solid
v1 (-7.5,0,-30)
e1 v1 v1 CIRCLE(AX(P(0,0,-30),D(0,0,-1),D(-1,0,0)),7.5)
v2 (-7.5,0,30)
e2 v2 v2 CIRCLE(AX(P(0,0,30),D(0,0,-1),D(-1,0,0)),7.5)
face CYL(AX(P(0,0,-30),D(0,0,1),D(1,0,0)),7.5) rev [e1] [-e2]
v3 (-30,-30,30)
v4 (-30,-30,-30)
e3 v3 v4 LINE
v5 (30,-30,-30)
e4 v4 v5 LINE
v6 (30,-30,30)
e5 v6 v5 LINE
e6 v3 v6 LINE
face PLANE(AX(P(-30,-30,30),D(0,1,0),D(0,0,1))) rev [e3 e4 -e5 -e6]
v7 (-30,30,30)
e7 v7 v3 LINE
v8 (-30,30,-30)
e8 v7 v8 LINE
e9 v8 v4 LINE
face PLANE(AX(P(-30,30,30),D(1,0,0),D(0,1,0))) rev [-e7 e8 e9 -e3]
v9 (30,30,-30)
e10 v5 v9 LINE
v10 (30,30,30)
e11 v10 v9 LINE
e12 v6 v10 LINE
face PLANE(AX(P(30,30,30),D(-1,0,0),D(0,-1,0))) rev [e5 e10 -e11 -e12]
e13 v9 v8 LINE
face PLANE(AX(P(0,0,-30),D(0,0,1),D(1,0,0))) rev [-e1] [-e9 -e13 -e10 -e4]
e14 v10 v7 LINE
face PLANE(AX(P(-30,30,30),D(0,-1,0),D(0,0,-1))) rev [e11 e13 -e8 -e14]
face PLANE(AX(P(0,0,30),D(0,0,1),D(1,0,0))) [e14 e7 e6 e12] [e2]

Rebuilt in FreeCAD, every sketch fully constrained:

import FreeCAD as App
import Part
import Sketcher
Q = App.Units.Quantity

doc = App.newDocument("Part")
body = doc.addObject("PartDesign::Body", "Body")

# Sketch on XY plane
sketch1 = body.newObject("Sketcher::SketchObject", "Sketch")
sketch1.AttachmentSupport = (doc.getObject("XY_Plane"), [""])
sketch1.MapMode = "FlatFace"
sketch1.addGeometry(Part.LineSegment(App.Vector(-30, 30, 0), App.Vector(-30, -30, 0)), False)
sketch1.addGeometry(Part.LineSegment(App.Vector(-30, -30, 0), App.Vector(30, -30, 0)), False)
sketch1.addGeometry(Part.LineSegment(App.Vector(30, -30, 0), App.Vector(30, 30, 0)), False)
sketch1.addGeometry(Part.LineSegment(App.Vector(30, 30, 0), App.Vector(-30, 30, 0)), False)
sketch1.addConstraint(Sketcher.Constraint("Coincident", 0, 2, 1, 1))
sketch1.addConstraint(Sketcher.Constraint("Coincident", 1, 2, 2, 1))
sketch1.addConstraint(Sketcher.Constraint("Coincident", 2, 2, 3, 1))
sketch1.addConstraint(Sketcher.Constraint("Coincident", 3, 2, 0, 1))
sketch1.addConstraint(Sketcher.Constraint("Vertical", 0))
sketch1.addConstraint(Sketcher.Constraint("Horizontal", 1))
sketch1.addConstraint(Sketcher.Constraint("Vertical", 2))
sketch1.addConstraint(Sketcher.Constraint("Horizontal", 3))
sketch1.addConstraint(Sketcher.Constraint("Symmetric", 0, 2, 2, 2, -1, 1))
sketch1.addConstraint(Sketcher.Constraint("Equal", 3, 0))
sketch1.addConstraint(Sketcher.Constraint("DistanceX", 1, 1, 1, 2, Q("60 mm")))
pad1 = body.newObject("PartDesign::Pad", "Pad")
pad1.Profile = sketch1
pad1.Length = 60
pad1.Midplane = True

# Sketch on XY plane
sketch2 = body.newObject("Sketcher::SketchObject", "Sketch001")
sketch2.AttachmentSupport = (doc.getObject("XY_Plane"), [""])
sketch2.MapMode = "FlatFace"
sketch2.AttachmentOffset = App.Placement(App.Vector(0, 0, 30), App.Rotation())
sketch2.addGeometry(Part.Circle(App.Vector(0, 0, 0), App.Vector(0, 0, 1), 8), False)
sketch2.addConstraint(Sketcher.Constraint("Coincident", 0, 3, -1, 1))
sketch2.addConstraint(Sketcher.Constraint("Diameter", 0, Q("15 mm")))
pocket1 = body.newObject("PartDesign::Pocket", "Pocket")
pocket1.Profile = sketch2
pocket1.Type = "ThroughAll"

doc.recompute()
